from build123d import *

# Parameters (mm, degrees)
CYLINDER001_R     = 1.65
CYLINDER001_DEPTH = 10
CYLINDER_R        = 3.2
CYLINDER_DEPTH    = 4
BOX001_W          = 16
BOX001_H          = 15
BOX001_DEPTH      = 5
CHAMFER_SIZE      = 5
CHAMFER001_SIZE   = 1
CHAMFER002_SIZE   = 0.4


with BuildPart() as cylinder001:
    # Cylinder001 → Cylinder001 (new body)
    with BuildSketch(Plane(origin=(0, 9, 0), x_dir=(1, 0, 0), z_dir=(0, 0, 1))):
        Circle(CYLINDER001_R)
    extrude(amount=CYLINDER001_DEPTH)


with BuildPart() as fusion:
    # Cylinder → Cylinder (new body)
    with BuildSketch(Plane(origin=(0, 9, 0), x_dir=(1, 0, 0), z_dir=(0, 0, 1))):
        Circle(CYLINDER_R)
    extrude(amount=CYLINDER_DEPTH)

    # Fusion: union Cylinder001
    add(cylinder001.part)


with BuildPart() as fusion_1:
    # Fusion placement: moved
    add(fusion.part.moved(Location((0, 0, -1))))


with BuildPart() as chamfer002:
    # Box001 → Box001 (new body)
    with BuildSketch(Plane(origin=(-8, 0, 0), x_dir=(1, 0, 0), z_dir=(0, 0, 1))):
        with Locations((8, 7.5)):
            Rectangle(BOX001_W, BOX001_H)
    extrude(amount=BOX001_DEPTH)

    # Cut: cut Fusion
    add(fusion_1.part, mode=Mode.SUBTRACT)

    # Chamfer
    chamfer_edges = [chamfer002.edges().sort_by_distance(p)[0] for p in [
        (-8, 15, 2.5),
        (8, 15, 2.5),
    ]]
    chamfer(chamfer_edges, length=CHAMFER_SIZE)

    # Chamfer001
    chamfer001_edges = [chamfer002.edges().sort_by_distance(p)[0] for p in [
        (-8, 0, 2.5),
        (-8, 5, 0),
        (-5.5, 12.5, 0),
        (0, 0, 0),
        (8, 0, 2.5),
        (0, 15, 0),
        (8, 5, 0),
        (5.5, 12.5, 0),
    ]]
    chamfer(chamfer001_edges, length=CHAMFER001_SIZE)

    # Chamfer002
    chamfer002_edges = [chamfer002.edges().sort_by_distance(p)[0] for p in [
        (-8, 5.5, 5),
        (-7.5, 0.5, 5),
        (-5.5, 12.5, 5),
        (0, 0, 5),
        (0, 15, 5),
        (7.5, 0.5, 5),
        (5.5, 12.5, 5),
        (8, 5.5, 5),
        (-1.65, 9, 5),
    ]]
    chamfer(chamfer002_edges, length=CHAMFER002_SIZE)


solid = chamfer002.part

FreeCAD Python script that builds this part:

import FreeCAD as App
import Part
import Sketcher
from FreeCAD import Vector
Q = App.Units.Quantity


def edges_at(feature, points):
    """Names of the edges that pass closest to the given points."""
    edges = feature.Shape.Edges
    near = lambda p: min(range(len(edges)), key=lambda i: edges[i].distToShape(Part.Vertex(*p))[0])
    return sorted({f"Edge{near(p) + 1}" for p in points})


def add_polygon(sketch, points):
    """Adds a closed chain of lines whose ends are joined by coincident constraints."""
    first, n = sketch.GeometryCount, len(points)
    for a, b in zip(points, points[1:] + points[:1]):
        sketch.addGeometry(Part.LineSegment(App.Vector(*a, 0), App.Vector(*b, 0)), False)
    for i in range(n):
        sketch.addConstraint(Sketcher.Constraint("Coincident", first + i, 2, first + (i + 1) % n, 1))

doc = App.newDocument("Part")
body = doc.addObject("PartDesign::Body", "Body")

# Sketch on XY plane
sketch1 = doc.addObject("Sketcher::SketchObject", "Sketch")
body.addObject(sketch1)
sketch1.AttachmentSupport = (doc.XY_Plane, [""])
sketch1.MapMode = "FlatFace"
sketch1.addGeometry(Part.Circle(Vector(0, 9, 0), Vector(0, 0, 1), 1.6), False)
sketch1.addConstraint([
    Sketcher.Constraint("PointOnObject", 0, 3, -2),
    Sketcher.Constraint("Diameter", 0, Q("3.3 mm")),
    Sketcher.Constraint("DistanceY", -1, 1, 0, 3, Q("9 mm")),
])
pad1 = doc.addObject("PartDesign::Pad", "Pad")
body.addObject(pad1)
pad1.Profile = sketch1
pad1.Length = 10
body2 = doc.addObject("PartDesign::Body", "Body001")

# Sketch on XY plane
sketch2 = doc.addObject("Sketcher::SketchObject", "Sketch001")
body2.addObject(sketch2)
sketch2.AttachmentSupport = (doc.getObject("XY_Plane001"), [""])
sketch2.MapMode = "FlatFace"
sketch2.addGeometry(Part.Circle(Vector(0, 9, 0), Vector(0, 0, 1), 3.2), False)
sketch2.addConstraint([
    Sketcher.Constraint("PointOnObject", 0, 3, -2),
    Sketcher.Constraint("Diameter", 0, Q("6.4 mm")),
    Sketcher.Constraint("DistanceY", -1, 1, 0, 3, Q("9 mm")),
])
pad2 = doc.addObject("PartDesign::Pad", "Pad001")
body2.addObject(pad2)
pad2.Profile = sketch2
pad2.Length = 4
doc.recompute()

boolean = doc.addObject("PartDesign::Boolean", "Boolean")
body2.addObject(boolean)
boolean.Type = "Fuse"
boolean.addObjects([body])
body3 = doc.addObject("PartDesign::Body", "Body002")
doc.recompute()

body2.Placement = App.Placement(Vector(0, 0, -1), App.Rotation(Vector(0, 0, 1), 0))
boolean2 = doc.addObject("PartDesign::Boolean", "Boolean001")
body3.addObject(boolean2)
boolean2.Type = "Fuse"
boolean2.addObjects([body2])
body4 = doc.addObject("PartDesign::Body", "Body003")

# Sketch on XY plane
sketch3 = doc.addObject("Sketcher::SketchObject", "Sketch002")
body4.addObject(sketch3)
sketch3.AttachmentSupport = (doc.getObject("XY_Plane003"), [""])
sketch3.MapMode = "FlatFace"
add_polygon(sketch3, [(-8, 15), (-8, 0), (8, 0), (8, 15)])  # lines 0-3
sketch3.addConstraint([
    Sketcher.Constraint("Vertical", 0),
    Sketcher.Constraint("Horizontal", 1),
    Sketcher.Constraint("Vertical", 2),
    Sketcher.Constraint("Horizontal", 3),
    Sketcher.Constraint("Symmetric", 0, 2, 1, 2, -1, 1),
    Sketcher.Constraint("DistanceX", 1, 1, 1, 2, Q("16 mm")),
    Sketcher.Constraint("DistanceY", 0, 2, 0, 1, Q("15 mm")),
])
pad3 = doc.addObject("PartDesign::Pad", "Pad002")
body4.addObject(pad3)
pad3.Profile = sketch3
pad3.Length = 5
doc.recompute()

boolean3 = doc.addObject("PartDesign::Boolean", "Boolean002")
body4.addObject(boolean3)
boolean3.Type = "Cut"
boolean3.addObjects([body3])
doc.recompute()

chamfer = doc.addObject("PartDesign::Chamfer", "Chamfer")
body4.addObject(chamfer)
chamfer.Base = (boolean3, edges_at(boolean3, [(-8, 15, 2.5), (8, 15, 2.5)]))
chamfer.Size = 5
doc.recompute()

chamfer2 = doc.addObject("PartDesign::Chamfer", "Chamfer001")
body4.addObject(chamfer2)
chamfer2.Base = (chamfer, edges_at(chamfer, [
    (-8, 0, 2.5),
    (-8, 5, 0),
    (-5.5, 12.5, 0),
    (0, 0, 0),
    (8, 0, 2.5),
    (0, 15, 0),
    (8, 5, 0),
    (5.5, 12.5, 0),
]))
chamfer2.Size = 1
doc.recompute()

chamfer3 = doc.addObject("PartDesign::Chamfer", "Chamfer002")
body4.addObject(chamfer3)
chamfer3.Base = (chamfer2, edges_at(chamfer2, [
    (-8, 5.5, 5),
    (-7.5, 0.5, 5),
    (-5.5, 12.5, 5),
    (0, 0, 5),
    (0, 15, 5),
    (7.5, 0.5, 5),
    (5.5, 12.5, 5),
    (8, 5.5, 5),
    (-1.65, 9, 5),
]))
chamfer3.Size = 0.4

doc.recompute()
